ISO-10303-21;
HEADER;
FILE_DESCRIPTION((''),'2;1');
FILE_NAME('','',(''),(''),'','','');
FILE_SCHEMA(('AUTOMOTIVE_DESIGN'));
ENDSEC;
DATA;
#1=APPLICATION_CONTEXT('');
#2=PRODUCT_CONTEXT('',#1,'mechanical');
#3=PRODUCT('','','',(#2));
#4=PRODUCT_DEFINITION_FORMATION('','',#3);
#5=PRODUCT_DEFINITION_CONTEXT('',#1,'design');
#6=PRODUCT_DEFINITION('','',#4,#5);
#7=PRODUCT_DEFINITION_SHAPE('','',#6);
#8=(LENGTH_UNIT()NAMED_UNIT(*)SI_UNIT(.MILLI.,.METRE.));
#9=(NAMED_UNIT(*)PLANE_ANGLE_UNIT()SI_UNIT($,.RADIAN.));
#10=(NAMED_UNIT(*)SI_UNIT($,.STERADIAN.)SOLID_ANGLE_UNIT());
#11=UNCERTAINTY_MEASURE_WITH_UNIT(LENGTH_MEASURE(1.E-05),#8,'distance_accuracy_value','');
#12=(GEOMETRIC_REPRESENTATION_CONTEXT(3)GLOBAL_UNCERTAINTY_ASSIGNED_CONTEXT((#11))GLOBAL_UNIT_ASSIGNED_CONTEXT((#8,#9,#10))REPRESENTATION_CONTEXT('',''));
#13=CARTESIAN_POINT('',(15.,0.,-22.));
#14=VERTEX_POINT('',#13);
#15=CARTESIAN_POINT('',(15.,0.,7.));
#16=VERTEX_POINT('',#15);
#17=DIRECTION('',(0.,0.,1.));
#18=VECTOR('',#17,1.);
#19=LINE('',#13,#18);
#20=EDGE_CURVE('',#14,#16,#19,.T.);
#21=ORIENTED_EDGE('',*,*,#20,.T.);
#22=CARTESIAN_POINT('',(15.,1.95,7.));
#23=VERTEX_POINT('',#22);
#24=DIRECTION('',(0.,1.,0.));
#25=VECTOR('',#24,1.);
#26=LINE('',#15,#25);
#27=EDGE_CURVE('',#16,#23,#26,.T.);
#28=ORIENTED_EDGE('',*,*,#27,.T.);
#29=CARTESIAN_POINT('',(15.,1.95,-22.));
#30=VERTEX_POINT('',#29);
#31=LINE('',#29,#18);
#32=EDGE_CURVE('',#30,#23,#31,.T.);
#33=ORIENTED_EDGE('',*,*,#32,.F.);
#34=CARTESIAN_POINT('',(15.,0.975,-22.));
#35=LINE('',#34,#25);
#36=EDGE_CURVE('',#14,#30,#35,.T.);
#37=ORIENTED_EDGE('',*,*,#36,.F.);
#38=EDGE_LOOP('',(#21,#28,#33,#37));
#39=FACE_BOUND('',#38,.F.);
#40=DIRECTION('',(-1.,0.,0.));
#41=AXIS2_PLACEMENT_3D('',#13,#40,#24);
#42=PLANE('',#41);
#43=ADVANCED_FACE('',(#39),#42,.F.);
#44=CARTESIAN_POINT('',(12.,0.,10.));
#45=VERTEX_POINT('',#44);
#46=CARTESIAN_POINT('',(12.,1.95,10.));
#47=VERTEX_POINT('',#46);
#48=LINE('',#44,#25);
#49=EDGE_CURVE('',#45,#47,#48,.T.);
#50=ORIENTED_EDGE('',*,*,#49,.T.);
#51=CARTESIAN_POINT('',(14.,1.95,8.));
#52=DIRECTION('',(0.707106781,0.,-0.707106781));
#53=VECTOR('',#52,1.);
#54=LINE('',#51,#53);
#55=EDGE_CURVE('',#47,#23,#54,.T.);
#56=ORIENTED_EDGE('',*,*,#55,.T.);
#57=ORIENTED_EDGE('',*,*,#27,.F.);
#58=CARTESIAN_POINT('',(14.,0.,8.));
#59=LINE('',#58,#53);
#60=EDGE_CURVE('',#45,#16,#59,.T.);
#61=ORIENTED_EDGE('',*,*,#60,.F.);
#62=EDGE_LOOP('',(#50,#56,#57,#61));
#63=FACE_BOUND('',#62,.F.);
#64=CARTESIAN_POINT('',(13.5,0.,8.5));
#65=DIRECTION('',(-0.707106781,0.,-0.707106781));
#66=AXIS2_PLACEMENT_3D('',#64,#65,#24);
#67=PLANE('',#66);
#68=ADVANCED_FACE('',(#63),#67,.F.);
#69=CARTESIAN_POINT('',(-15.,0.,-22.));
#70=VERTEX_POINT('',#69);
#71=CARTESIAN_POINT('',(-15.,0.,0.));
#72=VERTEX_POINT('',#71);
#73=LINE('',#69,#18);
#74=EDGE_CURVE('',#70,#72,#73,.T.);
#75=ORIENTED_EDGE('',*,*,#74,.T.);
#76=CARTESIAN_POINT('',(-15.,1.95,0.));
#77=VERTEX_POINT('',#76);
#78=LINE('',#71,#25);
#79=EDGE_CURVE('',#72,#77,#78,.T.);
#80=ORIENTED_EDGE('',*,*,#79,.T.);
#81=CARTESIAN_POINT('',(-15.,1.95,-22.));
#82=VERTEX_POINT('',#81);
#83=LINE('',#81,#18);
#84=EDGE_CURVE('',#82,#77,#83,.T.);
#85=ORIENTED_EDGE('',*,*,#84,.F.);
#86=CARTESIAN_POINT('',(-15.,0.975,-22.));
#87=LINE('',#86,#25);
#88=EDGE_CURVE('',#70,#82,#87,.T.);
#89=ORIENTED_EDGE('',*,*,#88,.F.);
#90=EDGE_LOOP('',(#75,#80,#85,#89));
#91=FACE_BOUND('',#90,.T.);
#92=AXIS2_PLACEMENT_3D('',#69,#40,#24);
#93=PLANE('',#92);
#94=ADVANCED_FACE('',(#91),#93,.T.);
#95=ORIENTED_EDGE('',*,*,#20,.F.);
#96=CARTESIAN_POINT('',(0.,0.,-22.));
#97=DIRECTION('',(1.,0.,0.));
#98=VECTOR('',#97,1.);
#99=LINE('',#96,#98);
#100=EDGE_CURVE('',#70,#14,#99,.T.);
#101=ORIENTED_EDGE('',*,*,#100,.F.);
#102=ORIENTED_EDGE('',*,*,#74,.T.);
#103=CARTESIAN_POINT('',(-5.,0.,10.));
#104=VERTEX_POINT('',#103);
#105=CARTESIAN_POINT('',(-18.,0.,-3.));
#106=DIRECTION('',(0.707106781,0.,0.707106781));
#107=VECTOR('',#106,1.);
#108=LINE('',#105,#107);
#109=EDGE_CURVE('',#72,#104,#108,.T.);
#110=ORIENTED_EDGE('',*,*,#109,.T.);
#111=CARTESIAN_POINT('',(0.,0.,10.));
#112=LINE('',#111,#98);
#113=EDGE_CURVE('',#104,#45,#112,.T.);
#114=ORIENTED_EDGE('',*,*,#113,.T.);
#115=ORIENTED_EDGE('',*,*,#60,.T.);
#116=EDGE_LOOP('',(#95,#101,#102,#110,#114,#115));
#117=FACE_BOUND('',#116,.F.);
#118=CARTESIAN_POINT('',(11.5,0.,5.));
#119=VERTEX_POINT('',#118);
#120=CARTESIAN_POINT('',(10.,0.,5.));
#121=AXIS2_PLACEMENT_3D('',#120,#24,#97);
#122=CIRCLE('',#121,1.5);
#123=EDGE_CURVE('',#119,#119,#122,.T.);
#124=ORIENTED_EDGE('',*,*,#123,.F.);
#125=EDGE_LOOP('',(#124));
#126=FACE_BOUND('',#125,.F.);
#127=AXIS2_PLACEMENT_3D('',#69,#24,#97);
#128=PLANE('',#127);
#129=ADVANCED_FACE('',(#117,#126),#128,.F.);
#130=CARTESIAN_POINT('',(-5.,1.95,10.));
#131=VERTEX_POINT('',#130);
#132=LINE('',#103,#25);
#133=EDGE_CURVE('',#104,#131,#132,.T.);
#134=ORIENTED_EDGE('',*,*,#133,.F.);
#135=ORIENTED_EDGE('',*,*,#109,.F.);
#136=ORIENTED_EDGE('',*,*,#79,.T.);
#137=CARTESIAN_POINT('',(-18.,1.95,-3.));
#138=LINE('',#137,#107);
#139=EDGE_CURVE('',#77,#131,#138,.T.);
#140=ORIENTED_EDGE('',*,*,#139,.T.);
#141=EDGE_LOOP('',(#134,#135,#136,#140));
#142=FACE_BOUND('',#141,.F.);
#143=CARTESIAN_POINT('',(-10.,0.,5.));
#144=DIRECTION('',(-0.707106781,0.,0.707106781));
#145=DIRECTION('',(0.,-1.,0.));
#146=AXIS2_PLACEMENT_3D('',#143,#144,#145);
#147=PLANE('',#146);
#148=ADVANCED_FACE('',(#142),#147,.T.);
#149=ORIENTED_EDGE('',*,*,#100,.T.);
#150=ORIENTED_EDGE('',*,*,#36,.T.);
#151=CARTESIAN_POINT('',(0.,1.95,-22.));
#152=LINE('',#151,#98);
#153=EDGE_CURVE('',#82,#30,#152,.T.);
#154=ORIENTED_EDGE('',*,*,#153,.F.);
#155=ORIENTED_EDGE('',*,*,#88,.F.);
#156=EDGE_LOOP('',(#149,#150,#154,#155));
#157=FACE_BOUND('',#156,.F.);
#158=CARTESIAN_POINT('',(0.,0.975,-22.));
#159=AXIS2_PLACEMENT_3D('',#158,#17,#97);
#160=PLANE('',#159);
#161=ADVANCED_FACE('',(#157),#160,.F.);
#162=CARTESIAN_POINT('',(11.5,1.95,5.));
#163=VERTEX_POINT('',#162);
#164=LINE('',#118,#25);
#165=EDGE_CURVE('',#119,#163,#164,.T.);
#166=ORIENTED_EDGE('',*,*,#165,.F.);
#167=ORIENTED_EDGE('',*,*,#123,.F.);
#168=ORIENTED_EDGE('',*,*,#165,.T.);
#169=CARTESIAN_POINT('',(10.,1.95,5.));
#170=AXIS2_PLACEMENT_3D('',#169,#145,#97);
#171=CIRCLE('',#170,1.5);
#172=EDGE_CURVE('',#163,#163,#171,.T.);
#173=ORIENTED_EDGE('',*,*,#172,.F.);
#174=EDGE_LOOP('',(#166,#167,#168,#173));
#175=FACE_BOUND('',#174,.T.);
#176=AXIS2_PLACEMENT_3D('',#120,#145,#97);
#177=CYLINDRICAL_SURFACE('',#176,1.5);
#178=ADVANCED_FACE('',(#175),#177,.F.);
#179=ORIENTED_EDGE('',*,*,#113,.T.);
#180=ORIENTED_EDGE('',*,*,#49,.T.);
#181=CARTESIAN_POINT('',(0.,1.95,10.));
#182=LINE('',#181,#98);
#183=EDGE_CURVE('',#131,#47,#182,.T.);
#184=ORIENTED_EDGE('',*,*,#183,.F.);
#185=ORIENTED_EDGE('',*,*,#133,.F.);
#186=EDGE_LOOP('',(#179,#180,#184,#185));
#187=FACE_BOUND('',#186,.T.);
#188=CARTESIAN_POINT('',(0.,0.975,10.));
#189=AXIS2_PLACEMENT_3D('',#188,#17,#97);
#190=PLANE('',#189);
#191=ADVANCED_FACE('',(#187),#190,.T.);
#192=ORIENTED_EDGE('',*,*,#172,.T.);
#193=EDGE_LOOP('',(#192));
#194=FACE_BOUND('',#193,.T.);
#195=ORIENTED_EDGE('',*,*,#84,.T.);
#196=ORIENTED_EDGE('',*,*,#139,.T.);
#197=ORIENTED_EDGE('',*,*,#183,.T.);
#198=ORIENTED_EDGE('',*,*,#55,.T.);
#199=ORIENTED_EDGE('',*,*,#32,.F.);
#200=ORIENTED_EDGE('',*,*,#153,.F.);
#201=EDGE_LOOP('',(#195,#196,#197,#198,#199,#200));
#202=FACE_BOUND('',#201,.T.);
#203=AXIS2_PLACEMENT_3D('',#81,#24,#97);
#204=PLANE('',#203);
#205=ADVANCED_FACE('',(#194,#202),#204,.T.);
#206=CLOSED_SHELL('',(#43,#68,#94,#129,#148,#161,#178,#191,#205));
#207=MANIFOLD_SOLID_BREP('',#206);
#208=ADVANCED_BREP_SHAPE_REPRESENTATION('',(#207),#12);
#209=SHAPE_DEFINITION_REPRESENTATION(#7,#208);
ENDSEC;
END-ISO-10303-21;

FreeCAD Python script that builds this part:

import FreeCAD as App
import Part
import Sketcher

V = App.Vector


def edges_at(feature, points):
    """Names of the edges that pass closest to the given points."""
    edges = feature.Shape.Edges
    near = lambda p: min(range(len(edges)), key=lambda i: edges[i].distToShape(Part.Vertex(*p))[0])
    return sorted({f"Edge{near(p) + 1}" for p in points})

doc = App.newDocument("Part")
body = doc.addObject("PartDesign::Body", "Body")

sketch1 = body.newObject("Sketcher::SketchObject", "Sketch")
sketch1.AttachmentSupport = (doc.getObject("XZ_Plane"), [""])
sketch1.MapMode = "FlatFace"
sketch1.addGeometry(Part.Circle(V(10, 5, 0), V(0, 0, 1), 1.5), False)
sketch1.addConstraint([
    Sketcher.Constraint("Diameter", 0, 3.0),
    Sketcher.Constraint("DistanceX", -1, 1, 0, 3, 10.0),
    Sketcher.Constraint("DistanceY", -1, 1, 0, 3, 5.0),
])
pad1 = body.newObject("PartDesign::Pad", "Pad")
pad1.Profile = sketch1
pad1.Length = 2
pad1.Reversed = True
body2 = doc.addObject("PartDesign::Body", "Body001")

sketch2 = body2.newObject("Sketcher::SketchObject", "Sketch001")
sketch2.AttachmentSupport = (doc.getObject("XY_Plane001"), [""])
sketch2.MapMode = "FlatFace"
sketch2.AttachmentOffset = App.Placement(V(0, 0, -22), App.Rotation())
sketch2.addGeometry([
    Part.LineSegment(V(-15, 1.95, 0), V(-15, 0, 0)),
    Part.LineSegment(V(-15, 0, 0), V(15, 0, 0)),
    Part.LineSegment(V(15, 0, 0), V(15, 1.95, 0)),
    Part.LineSegment(V(15, 1.95, 0), V(-15, 1.95, 0)),
], False)
sketch2.addConstraint([
    Sketcher.Constraint("Coincident", 0, 2, 1, 1),
    Sketcher.Constraint("Coincident", 1, 2, 2, 1),
    Sketcher.Constraint("Coincident", 2, 2, 3, 1),
    Sketcher.Constraint("Coincident", 3, 2, 0, 1),
    Sketcher.Constraint("Vertical", 0),
    Sketcher.Constraint("Horizontal", 1),
    Sketcher.Constraint("Vertical", 2),
    Sketcher.Constraint("Horizontal", 3),
    Sketcher.Constraint("Symmetric", 0, 2, 1, 2, -1, 1),
    Sketcher.Constraint("DistanceX", 1, 1, 1, 2, 30.0),
    Sketcher.Constraint("DistanceY", 0, 2, 0, 1, 1.95),
])
pad2 = body2.newObject("PartDesign::Pad", "Pad001")
pad2.Profile = sketch2
pad2.Length = 32
doc.recompute()

chamfer = body2.newObject("PartDesign::Chamfer", "Chamfer")
chamfer.Base = (pad2, edges_at(pad2, [(-15, 0.975, 10)]))
chamfer.Size = 10
doc.recompute()

chamfer2 = body2.newObject("PartDesign::Chamfer", "Chamfer001")
chamfer2.Base = (chamfer, edges_at(chamfer, [(15, 0.975, 10)]))
chamfer2.Size = 3
doc.recompute()

boolean = body2.newObject("PartDesign::Boolean", "Boolean")
boolean.Type = "Cut"
boolean.addObjects([body])

doc.recompute()
